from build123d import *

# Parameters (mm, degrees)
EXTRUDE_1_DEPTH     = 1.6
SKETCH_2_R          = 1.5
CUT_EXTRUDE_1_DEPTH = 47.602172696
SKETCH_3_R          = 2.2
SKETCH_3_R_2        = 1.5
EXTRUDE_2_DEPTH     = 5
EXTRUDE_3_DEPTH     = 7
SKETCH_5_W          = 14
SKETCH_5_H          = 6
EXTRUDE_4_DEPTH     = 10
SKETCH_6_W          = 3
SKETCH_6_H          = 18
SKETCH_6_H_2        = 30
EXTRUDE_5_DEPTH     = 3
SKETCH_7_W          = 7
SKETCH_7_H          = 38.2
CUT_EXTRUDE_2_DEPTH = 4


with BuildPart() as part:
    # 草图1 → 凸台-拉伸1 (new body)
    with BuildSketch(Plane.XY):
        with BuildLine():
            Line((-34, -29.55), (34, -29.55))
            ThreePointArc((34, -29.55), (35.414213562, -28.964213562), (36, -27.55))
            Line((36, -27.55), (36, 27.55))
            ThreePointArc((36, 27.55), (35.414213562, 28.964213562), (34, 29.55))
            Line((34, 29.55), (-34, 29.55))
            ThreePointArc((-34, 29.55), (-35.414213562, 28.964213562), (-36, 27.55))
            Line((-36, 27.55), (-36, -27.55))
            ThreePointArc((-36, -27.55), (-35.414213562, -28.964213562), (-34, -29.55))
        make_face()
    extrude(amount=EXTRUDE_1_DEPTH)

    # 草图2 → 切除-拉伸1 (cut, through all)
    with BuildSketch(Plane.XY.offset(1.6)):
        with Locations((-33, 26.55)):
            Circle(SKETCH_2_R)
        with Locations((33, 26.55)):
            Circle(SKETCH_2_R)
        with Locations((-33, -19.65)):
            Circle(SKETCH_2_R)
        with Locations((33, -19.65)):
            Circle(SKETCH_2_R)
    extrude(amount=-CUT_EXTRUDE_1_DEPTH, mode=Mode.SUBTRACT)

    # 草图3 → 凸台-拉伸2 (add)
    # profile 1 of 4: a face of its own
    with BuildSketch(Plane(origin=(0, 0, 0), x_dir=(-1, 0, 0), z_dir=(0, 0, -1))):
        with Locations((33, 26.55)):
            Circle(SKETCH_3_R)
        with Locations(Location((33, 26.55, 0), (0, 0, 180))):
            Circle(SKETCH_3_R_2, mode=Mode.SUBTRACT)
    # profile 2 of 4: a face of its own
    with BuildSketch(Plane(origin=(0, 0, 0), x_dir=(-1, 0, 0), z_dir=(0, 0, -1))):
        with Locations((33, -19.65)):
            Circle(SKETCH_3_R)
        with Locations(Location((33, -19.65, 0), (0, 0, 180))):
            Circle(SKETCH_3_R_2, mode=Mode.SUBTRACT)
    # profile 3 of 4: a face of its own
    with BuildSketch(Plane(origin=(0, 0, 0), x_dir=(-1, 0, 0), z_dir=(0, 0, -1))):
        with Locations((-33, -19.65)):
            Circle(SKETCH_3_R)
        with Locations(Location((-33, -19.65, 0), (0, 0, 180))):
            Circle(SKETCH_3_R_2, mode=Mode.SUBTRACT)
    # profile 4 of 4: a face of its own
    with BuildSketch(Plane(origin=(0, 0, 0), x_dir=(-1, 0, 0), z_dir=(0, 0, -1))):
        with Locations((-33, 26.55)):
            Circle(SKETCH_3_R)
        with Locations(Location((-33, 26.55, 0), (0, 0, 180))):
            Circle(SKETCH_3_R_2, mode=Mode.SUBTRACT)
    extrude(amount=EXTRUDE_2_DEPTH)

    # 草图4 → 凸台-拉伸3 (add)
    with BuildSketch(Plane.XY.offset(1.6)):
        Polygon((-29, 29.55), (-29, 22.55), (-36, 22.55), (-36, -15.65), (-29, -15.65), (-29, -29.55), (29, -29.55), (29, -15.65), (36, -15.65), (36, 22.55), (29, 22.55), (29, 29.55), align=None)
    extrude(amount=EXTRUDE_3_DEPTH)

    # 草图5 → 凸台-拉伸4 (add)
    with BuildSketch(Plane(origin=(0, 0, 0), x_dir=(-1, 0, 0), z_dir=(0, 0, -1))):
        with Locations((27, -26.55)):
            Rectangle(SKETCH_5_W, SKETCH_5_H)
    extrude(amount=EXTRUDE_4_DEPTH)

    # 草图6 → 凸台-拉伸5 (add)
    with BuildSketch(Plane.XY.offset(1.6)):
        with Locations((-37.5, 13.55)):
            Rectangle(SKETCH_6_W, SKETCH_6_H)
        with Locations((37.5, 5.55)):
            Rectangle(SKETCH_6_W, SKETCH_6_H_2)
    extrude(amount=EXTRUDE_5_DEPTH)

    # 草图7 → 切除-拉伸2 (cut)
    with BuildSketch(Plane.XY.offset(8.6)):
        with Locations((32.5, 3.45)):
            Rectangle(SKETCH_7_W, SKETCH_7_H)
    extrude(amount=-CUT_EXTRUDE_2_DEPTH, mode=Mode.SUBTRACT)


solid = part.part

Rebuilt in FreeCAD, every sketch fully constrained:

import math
import FreeCAD as App
import Part
import Sketcher
from FreeCAD import Vector

doc = App.newDocument("Part")
params = doc.addObject("Spreadsheet::Sheet", "Params")
for row, (alias, value) in enumerate([
    ("sketch1_radius", "2 mm"),
    ("sketch1_width", "68 mm"),
    ("sketch1_height", "55.1 mm"),
    ("pad1_length", "1.6 mm"),
    ("sketch2_diameter", "3 mm"),
    ("sketch3_diameter", "3 mm"),
    ("sketch3_diameter2", "4.4 mm"),
    ("pad2_length", "5 mm"),
    ("sketch4_width", "7 mm"),
    ("sketch4_width2", "58 mm"),
    ("sketch4_height", "38.2 mm"),
    ("sketch4_height2", "13.9 mm"),
    ("pad3_length", "7 mm"),
    ("sketch5_width", "14 mm"),
    ("sketch5_height", "6 mm"),
    ("pad4_length", "10 mm"),
    ("sketch6_width", "3 mm"),
    ("sketch6_height", "18 mm"),
    ("sketch6_height2", "30 mm"),
    ("pad5_length", "3 mm"),
    ("sketch7_width", "7 mm"),
    ("sketch7_height", "38.2 mm"),
    ("pocket2_length", "4 mm"),
], start=1):
    params.set(f"A{row}", alias)
    params.set(f"B{row}", "=" + value)
    params.setAlias(f"B{row}", alias)

body = doc.addObject("PartDesign::Body", "Body")

sketch1 = body.newObject("Sketcher::SketchObject", "Sketch")
sketch1.AttachmentSupport = (doc.getObject("XY_Plane"), [""])
sketch1.MapMode = "FlatFace"
sketch1.addGeometry(Part.LineSegment(Vector(-34, -29.6, 0), Vector(34, -29.6, 0)), False)
sketch1.addGeometry(Part.ArcOfCircle(Part.Circle(Vector(34, -27.5, 0), Vector(0, 0, 1), 2), math.radians(-90), math.radians(0)), False)
sketch1.addGeometry(Part.LineSegment(Vector(36, -27.6, 0), Vector(36, 27.6, 0)), False)
sketch1.addGeometry(Part.ArcOfCircle(Part.Circle(Vector(34, 27.5, 0), Vector(0, 0, 1), 2), math.radians(0), math.radians(90)), False)
sketch1.addGeometry(Part.LineSegment(Vector(34, 29.6, 0), Vector(-34, 29.6, 0)), False)
sketch1.addGeometry(Part.ArcOfCircle(Part.Circle(Vector(-34, 27.5, 0), Vector(0, 0, 1), 2), math.radians(90), math.radians(180)), False)
sketch1.addGeometry(Part.LineSegment(Vector(-36, 27.6, 0), Vector(-36, -27.6, 0)), False)
sketch1.addGeometry(Part.ArcOfCircle(Part.Circle(Vector(-34, -27.5, 0), Vector(0, 0, 1), 2), math.radians(-180), math.radians(-90)), False)
sketch1.addConstraint(Sketcher.Constraint("Tangent", 0, 2, 1, 1))
sketch1.addConstraint(Sketcher.Constraint("Tangent", 1, 2, 2, 1))
sketch1.addConstraint(Sketcher.Constraint("Tangent", 2, 2, 3, 1))
sketch1.addConstraint(Sketcher.Constraint("Tangent", 3, 2, 4, 1))
sketch1.addConstraint(Sketcher.Constraint("Tangent", 4, 2, 5, 1))
sketch1.addConstraint(Sketcher.Constraint("Tangent", 5, 2, 6, 1))
sketch1.addConstraint(Sketcher.Constraint("Tangent", 6, 2, 7, 1))
sketch1.addConstraint(Sketcher.Constraint("Tangent", 7, 2, 0, 1))
sketch1.addConstraint(Sketcher.Constraint("Horizontal", 0))
sketch1.addConstraint(Sketcher.Constraint("Vertical", 2))
sketch1.addConstraint(Sketcher.Constraint("Horizontal", 4))
sketch1.addConstraint(Sketcher.Constraint("Vertical", 6))
sketch1.addConstraint(Sketcher.Constraint("Equal", 1, 3))
sketch1.addConstraint(Sketcher.Constraint("Equal", 3, 5))
sketch1.addConstraint(Sketcher.Constraint("Equal", 5, 7))
sketch1.addConstraint(Sketcher.Constraint("Symmetric", 1, 3, 5, 3, -1, 1))
sketch1.addConstraint(Sketcher.Constraint("Radius", 1, 2.0))
sketch1.addConstraint(Sketcher.Constraint("DistanceX", 0, 1, 0, 2, 68.0))
sketch1.addConstraint(Sketcher.Constraint("DistanceY", 2, 1, 2, 2, 55.1))
sketch1.setExpression("Constraints[16]", "Params.sketch1_radius")
sketch1.setExpression("Constraints[17]", "Params.sketch1_width")
sketch1.setExpression("Constraints[18]", "Params.sketch1_height")
pad1 = body.newObject("PartDesign::Pad", "Pad")
pad1.Profile = sketch1
pad1.setExpression("Length", "Params.pad1_length")

sketch2 = body.newObject("Sketcher::SketchObject", "Sketch001")
sketch2.AttachmentSupport = (doc.getObject("XY_Plane"), [""])
sketch2.MapMode = "FlatFace"
sketch2.AttachmentOffset = App.Placement(Vector(0, 0, 1.6), App.Rotation())
sketch2.addGeometry(Part.Circle(Vector(-33, 26.6, 0), Vector(0, 0, 1), 1.5), False)
sketch2.addGeometry(Part.Circle(Vector(33, 26.6, 0), Vector(0, 0, 1), 1.5), False)
sketch2.addGeometry(Part.Circle(Vector(-33, -19.6, 0), Vector(0, 0, 1), 1.5), False)
sketch2.addGeometry(Part.Circle(Vector(33, -19.6, 0), Vector(0, 0, 1), 1.5), False)
sketch2.addConstraint(Sketcher.Constraint("Equal", 0, 1))
sketch2.addConstraint(Sketcher.Constraint("Equal", 1, 2))
sketch2.addConstraint(Sketcher.Constraint("Equal", 2, 3))
sketch2.addConstraint(Sketcher.Constraint("Symmetric", 0, 3, 1, 3, -2))
sketch2.addConstraint(Sketcher.Constraint("Symmetric", 2, 3, 3, 3, -2))
sketch2.addConstraint(Sketcher.Constraint("Vertical", 0, 3, 2, 3))
sketch2.addConstraint(Sketcher.Constraint("Diameter", 0, 3.0))
sketch2.addConstraint(Sketcher.Constraint("DistanceX", 0, 3, -1, 1, 33.0))
sketch2.addConstraint(Sketcher.Constraint("DistanceY", 2, 3, 0, 3, 46.2))
sketch2.addConstraint(Sketcher.Constraint("DistanceY", -1, 1, 0, 3, 26.55))
sketch2.setExpression("Constraints[6]", "Params.sketch2_diameter")
pocket1 = body.newObject("PartDesign::Pocket", "Pocket")
pocket1.Profile = sketch2
pocket1.Type = "ThroughAll"

sketch3 = body.newObject("Sketcher::SketchObject", "Sketch002")
sketch3.AttachmentSupport = (doc.getObject("XY_Plane"), [""])
sketch3.MapMode = "FlatFace"
sketch3.addGeometry(Part.Circle(Vector(-33, 26.6, 0), Vector(0, 0, 1), 2.2), False)
sketch3.addGeometry(Part.Circle(Vector(-33, 26.6, 0), Vector(0, 0, 1), 1.5), False)
sketch3.addGeometry(Part.Circle(Vector(-33, -19.6, 0), Vector(0, 0, 1), 2.2), False)
sketch3.addGeometry(Part.Circle(Vector(-33, -19.6, 0), Vector(0, 0, 1), 1.5), False)
sketch3.addGeometry(Part.Circle(Vector(33, -19.6, 0), Vector(0, 0, 1), 2.2), False)
sketch3.addGeometry(Part.Circle(Vector(33, -19.6, 0), Vector(0, 0, 1), 1.5), False)
sketch3.addGeometry(Part.Circle(Vector(33, 26.6, 0), Vector(0, 0, 1), 2.2), False)
sketch3.addGeometry(Part.Circle(Vector(33, 26.6, 0), Vector(0, 0, 1), 1.5), False)
sketch3.addConstraint(Sketcher.Constraint("Coincident", 1, 3, 0, 3))
sketch3.addConstraint(Sketcher.Constraint("Coincident", 3, 3, 2, 3))
sketch3.addConstraint(Sketcher.Constraint("Coincident", 5, 3, 4, 3))
sketch3.addConstraint(Sketcher.Constraint("Coincident", 7, 3, 6, 3))
sketch3.addConstraint(Sketcher.Constraint("Equal", 0, 2))
sketch3.addConstraint(Sketcher.Constraint("Equal", 1, 3))
sketch3.addConstraint(Sketcher.Constraint("Equal", 2, 4))
sketch3.addConstraint(Sketcher.Constraint("Equal", 3, 5))
sketch3.addConstraint(Sketcher.Constraint("Equal", 4, 6))
sketch3.addConstraint(Sketcher.Constraint("Equal", 5, 7))
sketch3.addConstraint(Sketcher.Constraint("Symmetric", 2, 3, 4, 3, -2))
sketch3.addConstraint(Sketcher.Constraint("Symmetric", 0, 3, 6, 3, -2))
sketch3.addConstraint(Sketcher.Constraint("Vertical", 1, 3, 2, 3))
sketch3.addConstraint(Sketcher.Constraint("Diameter", 1, 3.0))
sketch3.addConstraint(Sketcher.Constraint("Diameter", 0, 4.4))
sketch3.addConstraint(Sketcher.Constraint("DistanceX", 0, 3, -1, 1, 33.0))
sketch3.addConstraint(Sketcher.Constraint("DistanceY", 2, 3, 0, 3, 46.2))
sketch3.addConstraint(Sketcher.Constraint("DistanceY", -1, 1, 0, 3, 26.55))
sketch3.setExpression("Constraints[13]", "Params.sketch3_diameter")
sketch3.setExpression("Constraints[14]", "Params.sketch3_diameter2")
pad2 = body.newObject("PartDesign::Pad", "Pad001")
pad2.Profile = sketch3
pad2.setExpression("Length", "Params.pad2_length")
pad2.Reversed = True

sketch4 = body.newObject("Sketcher::SketchObject", "Sketch003")
sketch4.AttachmentSupport = (doc.getObject("XY_Plane"), [""])
sketch4.MapMode = "FlatFace"
sketch4.AttachmentOffset = App.Placement(Vector(0, 0, 1.6), App.Rotation())
sketch4.addGeometry(Part.LineSegment(Vector(-29, 30, 0), Vector(-29, 23, 0)), False)
sketch4.addGeometry(Part.LineSegment(Vector(-29, 23, 0), Vector(-36, 23, 0)), False)
sketch4.addGeometry(Part.LineSegment(Vector(-36, 23, 0), Vector(-36, -16, 0)), False)
sketch4.addGeometry(Part.LineSegment(Vector(-36, -16, 0), Vector(-29, -16, 0)), False)
sketch4.addGeometry(Part.LineSegment(Vector(-29, -16, 0), Vector(-29, -30, 0)), False)
sketch4.addGeometry(Part.LineSegment(Vector(-29, -30, 0), Vector(29, -30, 0)), False)
sketch4.addGeometry(Part.LineSegment(Vector(29, -30, 0), Vector(29, -16, 0)), False)
sketch4.addGeometry(Part.LineSegment(Vector(29, -16, 0), Vector(36, -16, 0)), False)
sketch4.addGeometry(Part.LineSegment(Vector(36, -16, 0), Vector(36, 23, 0)), False)
sketch4.addGeometry(Part.LineSegment(Vector(36, 23, 0), Vector(29, 23, 0)), False)
sketch4.addGeometry(Part.LineSegment(Vector(29, 23, 0), Vector(29, 30, 0)), False)
sketch4.addGeometry(Part.LineSegment(Vector(29, 30, 0), Vector(-29, 30, 0)), False)
sketch4.addConstraint(Sketcher.Constraint("Coincident", 0, 2, 1, 1))
sketch4.addConstraint(Sketcher.Constraint("Coincident", 1, 2, 2, 1))
sketch4.addConstraint(Sketcher.Constraint("Coincident", 2, 2, 3, 1))
sketch4.addConstraint(Sketcher.Constraint("Coincident", 3, 2, 4, 1))
sketch4.addConstraint(Sketcher.Constraint("Coincident", 4, 2, 5, 1))
sketch4.addConstraint(Sketcher.Constraint("Coincident", 5, 2, 6, 1))
sketch4.addConstraint(Sketcher.Constraint("Coincident", 6, 2, 7, 1))
sketch4.addConstraint(Sketcher.Constraint("Coincident", 7, 2, 8, 1))
sketch4.addConstraint(Sketcher.Constraint("Coincident", 8, 2, 9, 1))
sketch4.addConstraint(Sketcher.Constraint("Coincident", 9, 2, 10, 1))
sketch4.addConstraint(Sketcher.Constraint("Coincident", 10, 2, 11, 1))
sketch4.addConstraint(Sketcher.Constraint("Coincident", 11, 2, 0, 1))
sketch4.addConstraint(Sketcher.Constraint("Vertical", 0))
sketch4.addConstraint(Sketcher.Constraint("Horizontal", 1))
sketch4.addConstraint(Sketcher.Constraint("Vertical", 2))
sketch4.addConstraint(Sketcher.Constraint("Horizontal", 3))
sketch4.addConstraint(Sketcher.Constraint("Vertical", 4))
sketch4.addConstraint(Sketcher.Constraint("Horizontal", 5))
sketch4.addConstraint(Sketcher.Constraint("Vertical", 6))
sketch4.addConstraint(Sketcher.Constraint("Horizontal", 7))
sketch4.addConstraint(Sketcher.Constraint("Vertical", 8))
sketch4.addConstraint(Sketcher.Constraint("Horizontal", 9))
sketch4.addConstraint(Sketcher.Constraint("Vertical", 10))
sketch4.addConstraint(Sketcher.Constraint("Horizontal", 11))
sketch4.addConstraint(Sketcher.Constraint("Symmetric", 4, 2, 10, 2, -1, 1))
sketch4.addConstraint(Sketcher.Constraint("Symmetric", 3, 2, 6, 2, -2))
sketch4.addConstraint(Sketcher.Constraint("Symmetric", 1, 2, 8, 2, -2))
sketch4.addConstraint(Sketcher.Constraint("Vertical", 0, 2, 3, 2))
sketch4.addConstraint(Sketcher.Constraint("Equal", 9, 0))
sketch4.addConstraint(Sketcher.Constraint("DistanceX", 1, 2, 1, 1, 7.0))
sketch4.addConstraint(Sketcher.Constraint("DistanceX", 5, 1, 5, 2, 58.0))
sketch4.addConstraint(Sketcher.Constraint("DistanceY", 2, 2, 2, 1, 38.2))
sketch4.addConstraint(Sketcher.Constraint("DistanceY", 4, 2, 4, 1, 13.9))
sketch4.setExpression("Constraints[29]", "Params.sketch4_width")
sketch4.setExpression("Constraints[30]", "Params.sketch4_width2")
sketch4.setExpression("Constraints[31]", "Params.sketch4_height")
sketch4.setExpression("Constraints[32]", "Params.sketch4_height2")
pad3 = body.newObject("PartDesign::Pad", "Pad002")
pad3.Profile = sketch4
pad3.setExpression("Length", "Params.pad3_length")

sketch5 = body.newObject("Sketcher::SketchObject", "Sketch004")
sketch5.AttachmentSupport = (doc.getObject("XY_Plane"), [""])
sketch5.MapMode = "FlatFace"
sketch5.addGeometry(Part.LineSegment(Vector(-20, -24, 0), Vector(-20, -30, 0)), False)
sketch5.addGeometry(Part.LineSegment(Vector(-20, -30, 0), Vector(-34, -30, 0)), False)
sketch5.addGeometry(Part.LineSegment(Vector(-34, -30, 0), Vector(-34, -24, 0)), False)
sketch5.addGeometry(Part.LineSegment(Vector(-34, -24, 0), Vector(-20, -24, 0)), False)
sketch5.addConstraint(Sketcher.Constraint("Coincident", 0, 2, 1, 1))
sketch5.addConstraint(Sketcher.Constraint("Coincident", 1, 2, 2, 1))
sketch5.addConstraint(Sketcher.Constraint("Coincident", 2, 2, 3, 1))
sketch5.addConstraint(Sketcher.Constraint("Coincident", 3, 2, 0, 1))
sketch5.addConstraint(Sketcher.Constraint("Vertical", 0))
sketch5.addConstraint(Sketcher.Constraint("Horizontal", 1))
sketch5.addConstraint(Sketcher.Constraint("Vertical", 2))
sketch5.addConstraint(Sketcher.Constraint("Horizontal", 3))
sketch5.addConstraint(Sketcher.Constraint("DistanceX", 1, 2, 1, 1, 14.0))
sketch5.addConstraint(Sketcher.Constraint("DistanceY", 0, 2, 0, 1, 6.0))
sketch5.addConstraint(Sketcher.Constraint("DistanceX", 0, 2, -1, 1, 20.0))
sketch5.addConstraint(Sketcher.Constraint("DistanceY", 0, 2, -1, 1, 29.55))
sketch5.setExpression("Constraints[8]", "Params.sketch5_width")
sketch5.setExpression("Constraints[9]", "Params.sketch5_height")
pad4 = body.newObject("PartDesign::Pad", "Pad003")
pad4.Profile = sketch5
pad4.setExpression("Length", "Params.pad4_length")
pad4.Reversed = True

sketch6 = body.newObject("Sketcher::SketchObject", "Sketch005")
sketch6.AttachmentSupport = (doc.getObject("XY_Plane"), [""])
sketch6.MapMode = "FlatFace"
sketch6.AttachmentOffset = App.Placement(Vector(0, 0, 1.6), App.Rotation())
sketch6.addGeometry(Part.LineSegment(Vector(-39, 22.6, 0), Vector(-39, 4.5, 0)), False)
sketch6.addGeometry(Part.LineSegment(Vector(-39, 4.5, 0), Vector(-36, 4.5, 0)), False)
sketch6.addGeometry(Part.LineSegment(Vector(-36, 4.5, 0), Vector(-36, 22.6, 0)), False)
sketch6.addGeometry(Part.LineSegment(Vector(-36, 22.6, 0), Vector(-39, 22.6, 0)), False)
sketch6.addGeometry(Part.LineSegment(Vector(36, 20.6, 0), Vector(36, -9.4, 0)), False)
sketch6.addGeometry(Part.LineSegment(Vector(36, -9.4, 0), Vector(39, -9.4, 0)), False)
sketch6.addGeometry(Part.LineSegment(Vector(39, -9.4, 0), Vector(39, 20.6, 0)), False)
sketch6.addGeometry(Part.LineSegment(Vector(39, 20.6, 0), Vector(36, 20.6, 0)), False)
sketch6.addConstraint(Sketcher.Constraint("Coincident", 0, 2, 1, 1))
sketch6.addConstraint(Sketcher.Constraint("Coincident", 1, 2, 2, 1))
sketch6.addConstraint(Sketcher.Constraint("Coincident", 2, 2, 3, 1))
sketch6.addConstraint(Sketcher.Constraint("Coincident", 3, 2, 0, 1))
sketch6.addConstraint(Sketcher.Constraint("Coincident", 4, 2, 5, 1))
sketch6.addConstraint(Sketcher.Constraint("Coincident", 5, 2, 6, 1))
sketch6.addConstraint(Sketcher.Constraint("Coincident", 6, 2, 7, 1))
sketch6.addConstraint(Sketcher.Constraint("Coincident", 7, 2, 4, 1))
sketch6.addConstraint(Sketcher.Constraint("Vertical", 0))
sketch6.addConstraint(Sketcher.Constraint("Horizontal", 1))
sketch6.addConstraint(Sketcher.Constraint("Vertical", 2))
sketch6.addConstraint(Sketcher.Constraint("Horizontal", 3))
sketch6.addConstraint(Sketcher.Constraint("Vertical", 4))
sketch6.addConstraint(Sketcher.Constraint("Horizontal", 5))
sketch6.addConstraint(Sketcher.Constraint("Vertical", 6))
sketch6.addConstraint(Sketcher.Constraint("Horizontal", 7))
sketch6.addConstraint(Sketcher.Constraint("Equal", 3, 5))
sketch6.addConstraint(Sketcher.Constraint("DistanceX", 1, 1, 1, 2, 3.0))
sketch6.addConstraint(Sketcher.Constraint("DistanceY", 0, 2, 0, 1, 18.0))
sketch6.addConstraint(Sketcher.Constraint("DistanceY", 4, 2, 4, 1, 30.0))
sketch6.addConstraint(Sketcher.Constraint("DistanceX", 0, 2, -1, 1, 39.0))
sketch6.addConstraint(Sketcher.Constraint("DistanceX", -1, 1, 4, 2, 36.0))
sketch6.addConstraint(Sketcher.Constraint("DistanceY", 4, 2, 1, 2, 14.0))
sketch6.addConstraint(Sketcher.Constraint("DistanceY", -1, 1, 0, 2, 4.55))
sketch6.setExpression("Constraints[17]", "Params.sketch6_width")
sketch6.setExpression("Constraints[18]", "Params.sketch6_height")
sketch6.setExpression("Constraints[19]", "Params.sketch6_height2")
pad5 = body.newObject("PartDesign::Pad", "Pad004")
pad5.Profile = sketch6
pad5.setExpression("Length", "Params.pad5_length")

sketch7 = body.newObject("Sketcher::SketchObject", "Sketch006")
sketch7.AttachmentSupport = (doc.getObject("XY_Plane"), [""])
sketch7.MapMode = "FlatFace"
sketch7.AttachmentOffset = App.Placement(Vector(0, 0, 8.6), App.Rotation())
sketch7.addGeometry(Part.LineSegment(Vector(29, 23, 0), Vector(29, -16, 0)), False)
sketch7.addGeometry(Part.LineSegment(Vector(29, -16, 0), Vector(36, -16, 0)), False)
sketch7.addGeometry(Part.LineSegment(Vector(36, -16, 0), Vector(36, 23, 0)), False)
sketch7.addGeometry(Part.LineSegment(Vector(36, 23, 0), Vector(29, 23, 0)), False)
sketch7.addConstraint(Sketcher.Constraint("Coincident", 0, 2, 1, 1))
sketch7.addConstraint(Sketcher.Constraint("Coincident", 1, 2, 2, 1))
sketch7.addConstraint(Sketcher.Constraint("Coincident", 2, 2, 3, 1))
sketch7.addConstraint(Sketcher.Constraint("Coincident", 3, 2, 0, 1))
sketch7.addConstraint(Sketcher.Constraint("Vertical", 0))
sketch7.addConstraint(Sketcher.Constraint("Horizontal", 1))
sketch7.addConstraint(Sketcher.Constraint("Vertical", 2))
sketch7.addConstraint(Sketcher.Constraint("Horizontal", 3))
sketch7.addConstraint(Sketcher.Constraint("DistanceX", 1, 1, 1, 2, 7.0))
sketch7.addConstraint(Sketcher.Constraint("DistanceY", 0, 2, 0, 1, 38.2))
sketch7.addConstraint(Sketcher.Constraint("DistanceX", -1, 1, 0, 2, 29.0))
sketch7.addConstraint(Sketcher.Constraint("DistanceY", 0, 2, -1, 1, 15.65))
sketch7.setExpression("Constraints[8]", "Params.sketch7_width")
sketch7.setExpression("Constraints[9]", "Params.sketch7_height")
pocket2 = body.newObject("PartDesign::Pocket", "Pocket001")
pocket2.Profile = sketch7
pocket2.setExpression("Length", "Params.pocket2_length")

doc.recompute()
